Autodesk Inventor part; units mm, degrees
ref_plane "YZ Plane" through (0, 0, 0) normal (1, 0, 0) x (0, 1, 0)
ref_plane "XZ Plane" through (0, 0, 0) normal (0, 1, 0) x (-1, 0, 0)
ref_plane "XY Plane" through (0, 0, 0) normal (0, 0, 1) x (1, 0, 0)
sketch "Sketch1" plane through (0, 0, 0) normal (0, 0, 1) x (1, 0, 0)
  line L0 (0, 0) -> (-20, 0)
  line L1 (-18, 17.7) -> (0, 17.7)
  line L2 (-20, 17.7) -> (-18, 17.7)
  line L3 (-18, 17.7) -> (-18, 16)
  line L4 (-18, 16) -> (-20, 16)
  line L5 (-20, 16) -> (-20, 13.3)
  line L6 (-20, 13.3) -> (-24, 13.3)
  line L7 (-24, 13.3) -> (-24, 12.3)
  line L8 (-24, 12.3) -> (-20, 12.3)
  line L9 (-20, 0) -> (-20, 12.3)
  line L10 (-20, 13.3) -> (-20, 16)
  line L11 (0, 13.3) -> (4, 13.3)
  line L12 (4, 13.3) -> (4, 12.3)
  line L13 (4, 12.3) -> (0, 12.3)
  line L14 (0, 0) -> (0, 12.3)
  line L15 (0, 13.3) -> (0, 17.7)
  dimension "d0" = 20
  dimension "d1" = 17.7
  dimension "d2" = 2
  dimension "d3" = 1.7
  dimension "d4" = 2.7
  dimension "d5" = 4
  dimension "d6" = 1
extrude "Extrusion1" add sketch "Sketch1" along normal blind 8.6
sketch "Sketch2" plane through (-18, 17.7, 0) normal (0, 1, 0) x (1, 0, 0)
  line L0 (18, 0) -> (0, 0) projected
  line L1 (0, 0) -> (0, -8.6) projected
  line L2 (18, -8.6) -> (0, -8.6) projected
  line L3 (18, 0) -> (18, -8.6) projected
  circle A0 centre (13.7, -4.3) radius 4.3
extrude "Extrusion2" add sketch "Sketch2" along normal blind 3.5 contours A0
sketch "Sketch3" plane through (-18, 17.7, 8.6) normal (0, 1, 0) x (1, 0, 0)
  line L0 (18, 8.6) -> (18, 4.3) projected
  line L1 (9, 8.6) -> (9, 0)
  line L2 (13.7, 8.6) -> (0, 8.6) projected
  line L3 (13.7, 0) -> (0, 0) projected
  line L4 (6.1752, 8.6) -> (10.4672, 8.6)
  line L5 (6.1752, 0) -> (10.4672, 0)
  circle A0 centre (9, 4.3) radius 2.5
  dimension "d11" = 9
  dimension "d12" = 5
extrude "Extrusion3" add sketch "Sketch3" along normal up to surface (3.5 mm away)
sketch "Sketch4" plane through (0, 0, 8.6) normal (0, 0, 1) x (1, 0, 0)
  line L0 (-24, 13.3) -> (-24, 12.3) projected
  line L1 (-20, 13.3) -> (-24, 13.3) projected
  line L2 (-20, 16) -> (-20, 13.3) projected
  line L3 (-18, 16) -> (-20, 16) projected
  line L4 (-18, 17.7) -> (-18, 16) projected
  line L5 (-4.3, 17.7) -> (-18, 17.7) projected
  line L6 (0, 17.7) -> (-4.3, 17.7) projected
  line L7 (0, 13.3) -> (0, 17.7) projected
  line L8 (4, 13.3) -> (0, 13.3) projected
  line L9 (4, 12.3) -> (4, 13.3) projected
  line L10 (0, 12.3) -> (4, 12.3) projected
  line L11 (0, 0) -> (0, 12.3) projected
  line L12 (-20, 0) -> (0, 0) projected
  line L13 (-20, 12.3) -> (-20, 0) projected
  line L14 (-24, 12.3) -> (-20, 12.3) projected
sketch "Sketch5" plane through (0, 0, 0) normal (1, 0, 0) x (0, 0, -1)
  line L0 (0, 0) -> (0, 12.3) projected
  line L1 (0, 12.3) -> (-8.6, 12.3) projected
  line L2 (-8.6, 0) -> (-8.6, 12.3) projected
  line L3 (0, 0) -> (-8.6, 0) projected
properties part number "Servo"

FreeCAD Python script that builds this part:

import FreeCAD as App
import Part
import Sketcher
from FreeCAD import Vector

doc = App.newDocument("Part")
body = doc.addObject("PartDesign::Body", "Body")

# Sketch on XY plane
sketch1 = body.newObject("Sketcher::SketchObject", "Sketch")
sketch1.AttachmentSupport = (doc.getObject("XY_Plane"), [""])
sketch1.MapMode = "FlatFace"
sketch1.addGeometry(Part.LineSegment(Vector(-20, 0, 0), Vector(0, 0, 0)), False)
sketch1.addGeometry(Part.LineSegment(Vector(0, 0, 0), Vector(0, 12.3, 0)), False)
sketch1.addGeometry(Part.LineSegment(Vector(0, 12.3, 0), Vector(4, 12.3, 0)), False)
sketch1.addGeometry(Part.LineSegment(Vector(4, 12.3, 0), Vector(4, 13.3, 0)), False)
sketch1.addGeometry(Part.LineSegment(Vector(4, 13.3, 0), Vector(0, 13.3, 0)), False)
sketch1.addGeometry(Part.LineSegment(Vector(0, 13.3, 0), Vector(0, 17.7, 0)), False)
sketch1.addGeometry(Part.LineSegment(Vector(0, 17.7, 0), Vector(-18, 17.7, 0)), False)
sketch1.addGeometry(Part.LineSegment(Vector(-18, 17.7, 0), Vector(-18, 16, 0)), False)
sketch1.addGeometry(Part.LineSegment(Vector(-18, 16, 0), Vector(-20, 16, 0)), False)
sketch1.addGeometry(Part.LineSegment(Vector(-20, 16, 0), Vector(-20, 13.3, 0)), False)
sketch1.addGeometry(Part.LineSegment(Vector(-20, 13.3, 0), Vector(-24, 13.3, 0)), False)
sketch1.addGeometry(Part.LineSegment(Vector(-24, 13.3, 0), Vector(-24, 12.3, 0)), False)
sketch1.addGeometry(Part.LineSegment(Vector(-24, 12.3, 0), Vector(-20, 12.3, 0)), False)
sketch1.addGeometry(Part.LineSegment(Vector(-20, 12.3, 0), Vector(-20, 0, 0)), False)
sketch1.addConstraint(Sketcher.Constraint("Coincident", 0, 2, 1, 1))
sketch1.addConstraint(Sketcher.Constraint("Coincident", 1, 2, 2, 1))
sketch1.addConstraint(Sketcher.Constraint("Coincident", 2, 2, 3, 1))
sketch1.addConstraint(Sketcher.Constraint("Coincident", 3, 2, 4, 1))
sketch1.addConstraint(Sketcher.Constraint("Coincident", 4, 2, 5, 1))
sketch1.addConstraint(Sketcher.Constraint("Coincident", 5, 2, 6, 1))
sketch1.addConstraint(Sketcher.Constraint("Coincident", 6, 2, 7, 1))
sketch1.addConstraint(Sketcher.Constraint("Coincident", 7, 2, 8, 1))
sketch1.addConstraint(Sketcher.Constraint("Coincident", 8, 2, 9, 1))
sketch1.addConstraint(Sketcher.Constraint("Coincident", 9, 2, 10, 1))
sketch1.addConstraint(Sketcher.Constraint("Coincident", 10, 2, 11, 1))
sketch1.addConstraint(Sketcher.Constraint("Coincident", 11, 2, 12, 1))
sketch1.addConstraint(Sketcher.Constraint("Coincident", 12, 2, 13, 1))
sketch1.addConstraint(Sketcher.Constraint("Coincident", 13, 2, 0, 1))
sketch1.addConstraint(Sketcher.Constraint("Horizontal", 0))
sketch1.addConstraint(Sketcher.Constraint("Vertical", 1))
sketch1.addConstraint(Sketcher.Constraint("Horizontal", 2))
sketch1.addConstraint(Sketcher.Constraint("Vertical", 3))
sketch1.addConstraint(Sketcher.Constraint("Horizontal", 4))
sketch1.addConstraint(Sketcher.Constraint("Vertical", 5))
sketch1.addConstraint(Sketcher.Constraint("Horizontal", 6))
sketch1.addConstraint(Sketcher.Constraint("Vertical", 7))
sketch1.addConstraint(Sketcher.Constraint("Horizontal", 8))
sketch1.addConstraint(Sketcher.Constraint("Vertical", 9))
sketch1.addConstraint(Sketcher.Constraint("Horizontal", 10))
sketch1.addConstraint(Sketcher.Constraint("Vertical", 11))
sketch1.addConstraint(Sketcher.Constraint("Horizontal", 12))
sketch1.addConstraint(Sketcher.Constraint("Vertical", 13))
sketch1.addConstraint(Sketcher.Constraint("Coincident", 0, 2, -1, 1))
sketch1.addConstraint(Sketcher.Constraint("PointOnObject", 4, 2, -2))
sketch1.addConstraint(Sketcher.Constraint("Horizontal", 4, 2, 9, 2))
sketch1.addConstraint(Sketcher.Constraint("Horizontal", 2, 2, 11, 2))
sketch1.addConstraint(Sketcher.Constraint("Vertical", 9, 2, 12, 2))
sketch1.addConstraint(Sketcher.Constraint("Equal", 4, 10))
sketch1.addConstraint(Sketcher.Constraint("DistanceX", 0, 1, 0, 2, 20.0))
sketch1.addConstraint(Sketcher.Constraint("DistanceX", 2, 1, 2, 2, 4.0))
sketch1.addConstraint(Sketcher.Constraint("DistanceX", 8, 2, 8, 1, 2.0))
sketch1.addConstraint(Sketcher.Constraint("DistanceY", 3, 1, 3, 2, 1.0))
sketch1.addConstraint(Sketcher.Constraint("DistanceY", 7, 2, 7, 1, 1.7))
sketch1.addConstraint(Sketcher.Constraint("DistanceY", 9, 2, 9, 1, 2.7))
sketch1.addConstraint(Sketcher.Constraint("DistanceY", -1, 1, 5, 2, 17.7))
pad1 = body.newObject("PartDesign::Pad", "Pad")
pad1.Profile = sketch1
pad1.Length = 8.6

# Sketch on XZ plane
sketch2 = body.newObject("Sketcher::SketchObject", "Sketch001")
sketch2.AttachmentSupport = (doc.getObject("XZ_Plane"), [""])
sketch2.MapMode = "FlatFace"
sketch2.AttachmentOffset = App.Placement(Vector(0, 0, -17.7), App.Rotation())
sketch2.addGeometry(Part.Circle(Vector(-4.3, 4.3, 0), Vector(0, 0, 1), 4.3), False)
sketch2.addConstraint(Sketcher.Constraint("Diameter", 0, 8.6))
sketch2.addConstraint(Sketcher.Constraint("DistanceX", 0, 3, -1, 1, 4.3))
sketch2.addConstraint(Sketcher.Constraint("DistanceY", -1, 1, 0, 3, 4.3))
pad2 = body.newObject("PartDesign::Pad", "Pad001")
pad2.Profile = sketch2
pad2.Length = 3.5
pad2.Reversed = True

# Sketch on XZ plane
sketch3 = body.newObject("Sketcher::SketchObject", "Sketch002")
sketch3.AttachmentSupport = (doc.getObject("XZ_Plane"), [""])
sketch3.MapMode = "FlatFace"
sketch3.AttachmentOffset = App.Placement(Vector(0, 0, -17.7), App.Rotation())
sketch3.addGeometry(Part.Circle(Vector(-9, 4.3, 0), Vector(0, 0, 1), 2.5), False)
sketch3.addConstraint(Sketcher.Constraint("Diameter", 0, 5.0))
sketch3.addConstraint(Sketcher.Constraint("DistanceX", 0, 3, -1, 1, 9.0))
sketch3.addConstraint(Sketcher.Constraint("DistanceY", -1, 1, 0, 3, 4.3))
pad3 = body.newObject("PartDesign::Pad", "Pad002")
pad3.Profile = sketch3
pad3.Length = 3.5
pad3.Reversed = True

doc.recompute()
